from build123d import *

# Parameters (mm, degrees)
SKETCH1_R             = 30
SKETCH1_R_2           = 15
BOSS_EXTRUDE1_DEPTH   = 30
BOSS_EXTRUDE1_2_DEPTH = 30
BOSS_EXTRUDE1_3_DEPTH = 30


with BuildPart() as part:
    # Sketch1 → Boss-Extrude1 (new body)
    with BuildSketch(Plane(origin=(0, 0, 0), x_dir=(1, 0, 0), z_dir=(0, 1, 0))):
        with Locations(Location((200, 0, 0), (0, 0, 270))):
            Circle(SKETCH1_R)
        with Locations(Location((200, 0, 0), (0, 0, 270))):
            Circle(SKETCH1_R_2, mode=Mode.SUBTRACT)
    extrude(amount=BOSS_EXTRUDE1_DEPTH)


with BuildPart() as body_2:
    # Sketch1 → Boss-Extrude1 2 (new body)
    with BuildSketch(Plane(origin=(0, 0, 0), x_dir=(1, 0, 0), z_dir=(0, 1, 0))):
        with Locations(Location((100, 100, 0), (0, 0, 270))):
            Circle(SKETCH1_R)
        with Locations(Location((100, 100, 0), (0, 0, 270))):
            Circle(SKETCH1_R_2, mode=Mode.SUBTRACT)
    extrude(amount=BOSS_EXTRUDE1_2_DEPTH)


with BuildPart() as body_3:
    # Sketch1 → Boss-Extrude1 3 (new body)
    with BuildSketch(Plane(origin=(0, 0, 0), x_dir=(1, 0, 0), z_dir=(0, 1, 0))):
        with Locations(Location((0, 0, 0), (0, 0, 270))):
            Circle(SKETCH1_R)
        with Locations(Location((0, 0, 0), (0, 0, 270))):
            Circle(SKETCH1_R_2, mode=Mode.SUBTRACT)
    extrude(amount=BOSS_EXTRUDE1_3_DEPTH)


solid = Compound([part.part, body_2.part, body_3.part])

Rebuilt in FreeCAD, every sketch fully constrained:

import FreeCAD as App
import Part
import Sketcher

V = App.Vector
Q = App.Units.Quantity

doc = App.newDocument("Part")
params = doc.addObject("Spreadsheet::Sheet", "Params")
for row, (alias, value) in enumerate([
    ("sketch1_diameter", "60 mm"),
    ("sketch1_diameter2", "30 mm"),
    ("pad1_length", "30 mm"),
    ("sketch2_diameter", "60 mm"),
    ("sketch2_diameter2", "30 mm"),
    ("pad2_length", "30 mm"),
    ("sketch3_diameter", "60 mm"),
    ("sketch3_diameter2", "30 mm"),
    ("pad3_length", "30 mm"),
], start=1):
    params.set(f"A{row}", alias)
    params.set(f"B{row}", "=" + value)
    params.setAlias(f"B{row}", alias)

body = doc.addObject("PartDesign::Body", "Body")

# Sketch on XZ plane
sketch1 = doc.addObject("Sketcher::SketchObject", "Sketch")
body.addObject(sketch1)
sketch1.AttachmentSupport = (doc.XZ_Plane, [""])
sketch1.MapMode = "FlatFace"
sketch1.addGeometry(Part.Circle(V(200, 0, 0), V(0, 0, 1), 30), False)
sketch1.addGeometry(Part.Circle(V(200, 0, 0), V(0, 0, 1), 15), False)
sketch1.addConstraint(Sketcher.Constraint("Coincident", 1, 3, 0, 3))
sketch1.addConstraint(Sketcher.Constraint("PointOnObject", 0, 3, -1))
sketch1.addConstraint(Sketcher.Constraint("Diameter", 0, Q("60 mm")))
sketch1.addConstraint(Sketcher.Constraint("Diameter", 1, Q("30 mm")))
sketch1.addConstraint(Sketcher.Constraint("DistanceX", -1, 1, 0, 3, Q("200 mm")))
sketch1.setExpression("Constraints[2]", "Params.sketch1_diameter")
sketch1.setExpression("Constraints[3]", "Params.sketch1_diameter2")
pad1 = doc.addObject("PartDesign::Pad", "Pad")
body.addObject(pad1)
pad1.Profile = sketch1
pad1.setExpression("Length", "Params.pad1_length")
pad1.Reversed = True
body2 = doc.addObject("PartDesign::Body", "Body001")

# Sketch on XZ plane
sketch2 = doc.addObject("Sketcher::SketchObject", "Sketch001")
body2.addObject(sketch2)
sketch2.AttachmentSupport = (doc.getObject("XZ_Plane001"), [""])
sketch2.MapMode = "FlatFace"
sketch2.addGeometry(Part.Circle(V(100, -100, 0), V(0, 0, 1), 30), False)
sketch2.addGeometry(Part.Circle(V(100, -100, 0), V(0, 0, 1), 15), False)
sketch2.addConstraint(Sketcher.Constraint("Coincident", 1, 3, 0, 3))
sketch2.addConstraint(Sketcher.Constraint("Diameter", 0, Q("60 mm")))
sketch2.addConstraint(Sketcher.Constraint("Diameter", 1, Q("30 mm")))
sketch2.addConstraint(Sketcher.Constraint("DistanceX", -1, 1, 0, 3, Q("100 mm")))
sketch2.addConstraint(Sketcher.Constraint("DistanceY", 0, 3, -1, 1, Q("100 mm")))
sketch2.setExpression("Constraints[1]", "Params.sketch2_diameter")
sketch2.setExpression("Constraints[2]", "Params.sketch2_diameter2")
pad2 = doc.addObject("PartDesign::Pad", "Pad001")
body2.addObject(pad2)
pad2.Profile = sketch2
pad2.setExpression("Length", "Params.pad2_length")
pad2.Reversed = True
body3 = doc.addObject("PartDesign::Body", "Body002")

# Sketch on XZ plane
sketch3 = doc.addObject("Sketcher::SketchObject", "Sketch002")
body3.addObject(sketch3)
sketch3.AttachmentSupport = (doc.getObject("XZ_Plane002"), [""])
sketch3.MapMode = "FlatFace"
sketch3.addGeometry(Part.Circle(V(0, 0, 0), V(0, 0, 1), 30), False)
sketch3.addGeometry(Part.Circle(V(0, 0, 0), V(0, 0, 1), 15), False)
sketch3.addConstraint(Sketcher.Constraint("Coincident", 0, 3, -1, 1))
sketch3.addConstraint(Sketcher.Constraint("Coincident", 1, 3, -1, 1))
sketch3.addConstraint(Sketcher.Constraint("Diameter", 0, Q("60 mm")))
sketch3.addConstraint(Sketcher.Constraint("Diameter", 1, Q("30 mm")))
sketch3.setExpression("Constraints[2]", "Params.sketch3_diameter")
sketch3.setExpression("Constraints[3]", "Params.sketch3_diameter2")
pad3 = doc.addObject("PartDesign::Pad", "Pad002")
body3.addObject(pad3)
pad3.Profile = sketch3
pad3.setExpression("Length", "Params.pad3_length")
pad3.Reversed = True

doc.recompute()
